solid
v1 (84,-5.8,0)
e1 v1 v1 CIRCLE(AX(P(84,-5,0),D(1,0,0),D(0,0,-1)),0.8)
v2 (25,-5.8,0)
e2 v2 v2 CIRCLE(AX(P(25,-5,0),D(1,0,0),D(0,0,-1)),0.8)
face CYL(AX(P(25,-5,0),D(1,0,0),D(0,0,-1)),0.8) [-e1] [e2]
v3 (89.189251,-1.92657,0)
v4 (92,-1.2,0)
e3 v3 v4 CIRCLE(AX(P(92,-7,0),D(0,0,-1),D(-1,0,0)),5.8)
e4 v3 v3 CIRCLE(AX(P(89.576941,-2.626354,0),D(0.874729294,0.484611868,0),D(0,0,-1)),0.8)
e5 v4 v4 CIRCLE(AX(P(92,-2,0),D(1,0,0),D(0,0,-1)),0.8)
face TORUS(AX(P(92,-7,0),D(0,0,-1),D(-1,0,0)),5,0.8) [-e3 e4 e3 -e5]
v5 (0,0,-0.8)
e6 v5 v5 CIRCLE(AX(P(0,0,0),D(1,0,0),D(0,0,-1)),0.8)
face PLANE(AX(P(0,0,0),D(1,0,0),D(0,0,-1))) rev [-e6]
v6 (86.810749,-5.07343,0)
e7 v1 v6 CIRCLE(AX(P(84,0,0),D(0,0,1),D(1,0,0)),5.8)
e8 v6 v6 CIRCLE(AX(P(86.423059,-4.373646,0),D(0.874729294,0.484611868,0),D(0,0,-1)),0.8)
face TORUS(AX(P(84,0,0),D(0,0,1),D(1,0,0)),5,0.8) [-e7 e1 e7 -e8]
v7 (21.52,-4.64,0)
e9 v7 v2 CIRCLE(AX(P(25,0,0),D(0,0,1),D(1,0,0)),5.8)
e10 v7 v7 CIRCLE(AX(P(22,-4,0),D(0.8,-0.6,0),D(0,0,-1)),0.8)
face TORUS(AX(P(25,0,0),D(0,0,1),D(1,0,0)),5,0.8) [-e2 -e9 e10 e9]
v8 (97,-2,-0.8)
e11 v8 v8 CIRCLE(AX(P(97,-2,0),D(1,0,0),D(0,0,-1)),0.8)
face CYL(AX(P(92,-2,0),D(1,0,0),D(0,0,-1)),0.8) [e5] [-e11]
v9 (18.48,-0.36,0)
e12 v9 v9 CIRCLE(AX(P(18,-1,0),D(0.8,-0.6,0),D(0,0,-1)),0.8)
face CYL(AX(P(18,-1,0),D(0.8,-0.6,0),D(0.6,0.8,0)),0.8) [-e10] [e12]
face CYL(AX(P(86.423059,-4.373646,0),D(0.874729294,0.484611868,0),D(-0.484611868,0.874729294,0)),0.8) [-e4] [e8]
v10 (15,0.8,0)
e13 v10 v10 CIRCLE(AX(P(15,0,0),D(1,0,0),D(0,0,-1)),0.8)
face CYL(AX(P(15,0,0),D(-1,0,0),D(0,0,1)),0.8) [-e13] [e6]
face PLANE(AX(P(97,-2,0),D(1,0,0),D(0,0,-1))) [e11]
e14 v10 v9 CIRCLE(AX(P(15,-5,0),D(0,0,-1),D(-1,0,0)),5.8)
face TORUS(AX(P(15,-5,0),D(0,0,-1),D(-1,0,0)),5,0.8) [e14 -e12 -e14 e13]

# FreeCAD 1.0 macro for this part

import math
import FreeCAD as App
import Part
import Sketcher

doc = App.newDocument("Part")
body = doc.addObject("PartDesign::Body", "Body")

# Sketch on YZ plane
sketch1 = doc.addObject("Sketcher::SketchObject", "Sketch")
body.addObject(sketch1)
sketch1.AttachmentSupport = (doc.YZ_Plane, [""])
sketch1.MapMode = "FlatFace"
sketch1.addGeometry(Part.Circle(App.Vector(0, 0, 0), App.Vector(0, 0, 1), 0.8), False)
sketch1.addConstraint(Sketcher.Constraint("Coincident", 0, 3, -1, 1))
sketch1.addConstraint(Sketcher.Constraint("Diameter", 0, 1.6))

# Sketch on XY plane
sketch2 = doc.addObject("Sketcher::SketchObject", "Sketch001")
body.addObject(sketch2)
sketch2.AttachmentSupport = (doc.XY_Plane, [""])
sketch2.MapMode = "FlatFace"
sketch2.addGeometry(Part.LineSegment(App.Vector(0, 0, 0), App.Vector(15, 0, 0)), False)
sketch2.addGeometry(Part.ArcOfCircle(Part.Circle(App.Vector(15, -5, 0), App.Vector(0, 0, 1), 5), math.radians(53), math.radians(90)), False)
sketch2.addGeometry(Part.LineSegment(App.Vector(18, -1, 0), App.Vector(22, -4, 0)), False)
sketch2.addGeometry(Part.ArcOfCircle(Part.Circle(App.Vector(25, 0, 0), App.Vector(0, 0, 1), 5), math.radians(-127), math.radians(-90)), False)
sketch2.addGeometry(Part.LineSegment(App.Vector(25, -5, 0), App.Vector(84, -5, 0)), False)
sketch2.addGeometry(Part.ArcOfCircle(Part.Circle(App.Vector(84, 0, 0), App.Vector(0, 0, 1), 5), math.radians(-90), math.radians(-61)), False)
sketch2.addGeometry(Part.LineSegment(App.Vector(86.4, -4.4, 0), App.Vector(89.6, -2.6, 0)), False)
sketch2.addGeometry(Part.ArcOfCircle(Part.Circle(App.Vector(92, -7, 0), App.Vector(0, 0, 1), 5), math.radians(90), math.radians(119)), False)
sketch2.addGeometry(Part.LineSegment(App.Vector(92, -2, 0), App.Vector(97, -2, 0)), False)
sketch2.addConstraint(Sketcher.Constraint("Tangent", 0, 2, 1, 2))
sketch2.addConstraint(Sketcher.Constraint("Tangent", 1, 1, 2, 1))
sketch2.addConstraint(Sketcher.Constraint("Tangent", 2, 2, 3, 1))
sketch2.addConstraint(Sketcher.Constraint("Tangent", 3, 2, 4, 1))
sketch2.addConstraint(Sketcher.Constraint("Tangent", 4, 2, 5, 1))
sketch2.addConstraint(Sketcher.Constraint("Tangent", 5, 2, 6, 1))
sketch2.addConstraint(Sketcher.Constraint("Tangent", 6, 2, 7, 2))
sketch2.addConstraint(Sketcher.Constraint("Tangent", 7, 1, 8, 1))
sketch2.addConstraint(Sketcher.Constraint("Horizontal", 0))
sketch2.addConstraint(Sketcher.Constraint("Horizontal", 4))
sketch2.addConstraint(Sketcher.Constraint("Horizontal", 8))
sketch2.addConstraint(Sketcher.Constraint("Coincident", 0, 1, -1, 1))
sketch2.addConstraint(Sketcher.Constraint("Equal", 1, 3))
sketch2.addConstraint(Sketcher.Constraint("Equal", 3, 5))
sketch2.addConstraint(Sketcher.Constraint("Equal", 5, 7))
sketch2.addConstraint(Sketcher.Constraint("PointOnObject", 3, 3, -1))
sketch2.addConstraint(Sketcher.Constraint("Radius", 1, 5.0))
sketch2.addConstraint(Sketcher.Constraint("DistanceX", 0, 1, 0, 2, 15.0))
sketch2.addConstraint(Sketcher.Constraint("DistanceX", 4, 1, 4, 2, 59.0))
sketch2.addConstraint(Sketcher.Constraint("DistanceX", 8, 1, 8, 2, 5.0))
sketch2.addConstraint(Sketcher.Constraint("Distance", 2, 5.0))
sketch2.addConstraint(Sketcher.Constraint("DistanceX", -1, 1, 7, 3, 92.0))
sketch2.addConstraint(Sketcher.Constraint("DistanceY", 7, 3, -1, 1, 7.0))
doc.recompute()

additivepipe = doc.addObject("PartDesign::AdditivePipe", "AdditivePipe")
body.addObject(additivepipe)
additivepipe.Profile = sketch1
additivepipe.Spine = (sketch2, ["Edge1", "Edge2", "Edge3", "Edge4", "Edge5", "Edge6", "Edge7", "Edge8", "Edge9"])

doc.recompute()
